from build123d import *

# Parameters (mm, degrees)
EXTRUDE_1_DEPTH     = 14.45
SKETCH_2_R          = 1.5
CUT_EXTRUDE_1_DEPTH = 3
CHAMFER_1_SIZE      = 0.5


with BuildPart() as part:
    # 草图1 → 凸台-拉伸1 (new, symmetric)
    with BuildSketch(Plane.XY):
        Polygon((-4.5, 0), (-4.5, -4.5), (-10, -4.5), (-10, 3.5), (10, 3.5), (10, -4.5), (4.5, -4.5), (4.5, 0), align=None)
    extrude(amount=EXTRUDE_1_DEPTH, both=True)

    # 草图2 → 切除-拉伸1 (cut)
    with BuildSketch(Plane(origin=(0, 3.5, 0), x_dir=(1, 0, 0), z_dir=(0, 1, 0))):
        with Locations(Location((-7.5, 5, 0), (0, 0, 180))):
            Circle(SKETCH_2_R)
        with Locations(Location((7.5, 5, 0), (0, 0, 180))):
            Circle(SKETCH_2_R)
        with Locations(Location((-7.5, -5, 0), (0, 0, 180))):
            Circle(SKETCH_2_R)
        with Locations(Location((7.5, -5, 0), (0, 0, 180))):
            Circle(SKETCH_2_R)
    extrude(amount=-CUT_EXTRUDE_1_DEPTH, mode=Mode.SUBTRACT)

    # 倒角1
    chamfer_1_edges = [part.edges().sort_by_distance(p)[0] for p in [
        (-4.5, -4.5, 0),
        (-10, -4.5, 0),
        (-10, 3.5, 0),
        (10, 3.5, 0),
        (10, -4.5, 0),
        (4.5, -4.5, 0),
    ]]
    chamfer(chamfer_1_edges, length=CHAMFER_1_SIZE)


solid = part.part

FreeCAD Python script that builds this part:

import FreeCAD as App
import Part
import Sketcher
from FreeCAD import Vector


def edges_at(feature, points):
    """Names of the edges that pass closest to the given points."""
    edges = feature.Shape.Edges
    near = lambda p: min(range(len(edges)), key=lambda i: edges[i].distToShape(Part.Vertex(*p))[0])
    return sorted({f"Edge{near(p) + 1}" for p in points})

doc = App.newDocument("Part")
body = doc.addObject("PartDesign::Body", "Body")

# Sketch on XY plane
sketch1 = body.newObject("Sketcher::SketchObject", "Sketch")
sketch1.AttachmentSupport = (doc.getObject("XY_Plane"), [""])
sketch1.MapMode = "FlatFace"
sketch1.addGeometry([
    Part.LineSegment(Vector(-4.5, -4.5, 0), Vector(-4.5, 0, 0)),  # 0
    Part.LineSegment(Vector(-4.5, 0, 0), Vector(4.5, 0, 0)),  # 1
    Part.LineSegment(Vector(4.5, 0, 0), Vector(4.5, -4.5, 0)),  # 2
    Part.LineSegment(Vector(4.5, -4.5, 0), Vector(10, -4.5, 0)),  # 3
    Part.LineSegment(Vector(10, -4.5, 0), Vector(10, 3.5, 0)),  # 4
    Part.LineSegment(Vector(10, 3.5, 0), Vector(-10, 3.5, 0)),  # 5
    Part.LineSegment(Vector(-10, 3.5, 0), Vector(-10, -4.5, 0)),  # 6
    Part.LineSegment(Vector(-10, -4.5, 0), Vector(-4.5, -4.5, 0)),  # 7
], False)
sketch1.addConstraint([
    Sketcher.Constraint("Coincident", 0, 2, 1, 1),
    Sketcher.Constraint("Coincident", 1, 2, 2, 1),
    Sketcher.Constraint("Coincident", 2, 2, 3, 1),
    Sketcher.Constraint("Coincident", 3, 2, 4, 1),
    Sketcher.Constraint("Coincident", 4, 2, 5, 1),
    Sketcher.Constraint("Coincident", 5, 2, 6, 1),
    Sketcher.Constraint("Coincident", 6, 2, 7, 1),
    Sketcher.Constraint("Coincident", 7, 2, 0, 1),
    Sketcher.Constraint("Vertical", 0),
    Sketcher.Constraint("Horizontal", 1),
    Sketcher.Constraint("Vertical", 2),
    Sketcher.Constraint("Horizontal", 3),
    Sketcher.Constraint("Vertical", 4),
    Sketcher.Constraint("Horizontal", 5),
    Sketcher.Constraint("Vertical", 6),
    Sketcher.Constraint("Horizontal", 7),
    Sketcher.Constraint("Symmetric", 0, 2, 1, 2, -1, 1),
    Sketcher.Constraint("Symmetric", 3, 2, 6, 2, -2),
    Sketcher.Constraint("DistanceX", 1, 1, 1, 2, 9.0),
    Sketcher.Constraint("DistanceX", 5, 2, 5, 1, 20.0),
    Sketcher.Constraint("DistanceY", 4, 1, 4, 2, 8.0),
    Sketcher.Constraint("DistanceY", 0, 1, 0, 2, 4.5),
])
pad1 = body.newObject("PartDesign::Pad", "Pad")
pad1.Profile = sketch1
pad1.Length = 28.9
pad1.Midplane = True

# Sketch on XZ plane
sketch2 = body.newObject("Sketcher::SketchObject", "Sketch001")
sketch2.AttachmentSupport = (doc.getObject("XZ_Plane"), [""])
sketch2.MapMode = "FlatFace"
sketch2.AttachmentOffset = App.Placement(Vector(0, 0, -3.5), App.Rotation())
sketch2.addGeometry([
    Part.Circle(Vector(-7.5, -5, 0), Vector(0, 0, 1), 1.5),
    Part.Circle(Vector(7.5, -5, 0), Vector(0, 0, 1), 1.5),
    Part.Circle(Vector(-7.5, 5, 0), Vector(0, 0, 1), 1.5),
    Part.Circle(Vector(7.5, 5, 0), Vector(0, 0, 1), 1.5),
], False)
sketch2.addConstraint([
    Sketcher.Constraint("Equal", 0, 1),
    Sketcher.Constraint("Equal", 1, 2),
    Sketcher.Constraint("Equal", 2, 3),
    Sketcher.Constraint("Symmetric", 1, 3, 2, 3, -1, 1),
    Sketcher.Constraint("Symmetric", 0, 3, 3, 3, -1, 1),
    Sketcher.Constraint("Symmetric", 0, 3, 1, 3, -2),
    Sketcher.Constraint("Diameter", 0, 3.0),
    Sketcher.Constraint("DistanceY", 0, 3, -1, 1, 5.0),
    Sketcher.Constraint("DistanceX", 0, 3, 1, 3, 15.0),
])
pocket1 = body.newObject("PartDesign::Pocket", "Pocket")
pocket1.Profile = sketch2
pocket1.Length = 3
pocket1.Reversed = True
doc.recompute()

chamfer = body.newObject("PartDesign::Chamfer", "Chamfer")
chamfer.Base = (pocket1, edges_at(pocket1, [
    (-4.5, -4.5, 0),
    (-10, -4.5, 0),
    (-10, 3.5, 0),
    (10, 3.5, 0),
    (10, -4.5, 0),
    (4.5, -4.5, 0),
]))
chamfer.Size = 0.5

doc.recompute()
